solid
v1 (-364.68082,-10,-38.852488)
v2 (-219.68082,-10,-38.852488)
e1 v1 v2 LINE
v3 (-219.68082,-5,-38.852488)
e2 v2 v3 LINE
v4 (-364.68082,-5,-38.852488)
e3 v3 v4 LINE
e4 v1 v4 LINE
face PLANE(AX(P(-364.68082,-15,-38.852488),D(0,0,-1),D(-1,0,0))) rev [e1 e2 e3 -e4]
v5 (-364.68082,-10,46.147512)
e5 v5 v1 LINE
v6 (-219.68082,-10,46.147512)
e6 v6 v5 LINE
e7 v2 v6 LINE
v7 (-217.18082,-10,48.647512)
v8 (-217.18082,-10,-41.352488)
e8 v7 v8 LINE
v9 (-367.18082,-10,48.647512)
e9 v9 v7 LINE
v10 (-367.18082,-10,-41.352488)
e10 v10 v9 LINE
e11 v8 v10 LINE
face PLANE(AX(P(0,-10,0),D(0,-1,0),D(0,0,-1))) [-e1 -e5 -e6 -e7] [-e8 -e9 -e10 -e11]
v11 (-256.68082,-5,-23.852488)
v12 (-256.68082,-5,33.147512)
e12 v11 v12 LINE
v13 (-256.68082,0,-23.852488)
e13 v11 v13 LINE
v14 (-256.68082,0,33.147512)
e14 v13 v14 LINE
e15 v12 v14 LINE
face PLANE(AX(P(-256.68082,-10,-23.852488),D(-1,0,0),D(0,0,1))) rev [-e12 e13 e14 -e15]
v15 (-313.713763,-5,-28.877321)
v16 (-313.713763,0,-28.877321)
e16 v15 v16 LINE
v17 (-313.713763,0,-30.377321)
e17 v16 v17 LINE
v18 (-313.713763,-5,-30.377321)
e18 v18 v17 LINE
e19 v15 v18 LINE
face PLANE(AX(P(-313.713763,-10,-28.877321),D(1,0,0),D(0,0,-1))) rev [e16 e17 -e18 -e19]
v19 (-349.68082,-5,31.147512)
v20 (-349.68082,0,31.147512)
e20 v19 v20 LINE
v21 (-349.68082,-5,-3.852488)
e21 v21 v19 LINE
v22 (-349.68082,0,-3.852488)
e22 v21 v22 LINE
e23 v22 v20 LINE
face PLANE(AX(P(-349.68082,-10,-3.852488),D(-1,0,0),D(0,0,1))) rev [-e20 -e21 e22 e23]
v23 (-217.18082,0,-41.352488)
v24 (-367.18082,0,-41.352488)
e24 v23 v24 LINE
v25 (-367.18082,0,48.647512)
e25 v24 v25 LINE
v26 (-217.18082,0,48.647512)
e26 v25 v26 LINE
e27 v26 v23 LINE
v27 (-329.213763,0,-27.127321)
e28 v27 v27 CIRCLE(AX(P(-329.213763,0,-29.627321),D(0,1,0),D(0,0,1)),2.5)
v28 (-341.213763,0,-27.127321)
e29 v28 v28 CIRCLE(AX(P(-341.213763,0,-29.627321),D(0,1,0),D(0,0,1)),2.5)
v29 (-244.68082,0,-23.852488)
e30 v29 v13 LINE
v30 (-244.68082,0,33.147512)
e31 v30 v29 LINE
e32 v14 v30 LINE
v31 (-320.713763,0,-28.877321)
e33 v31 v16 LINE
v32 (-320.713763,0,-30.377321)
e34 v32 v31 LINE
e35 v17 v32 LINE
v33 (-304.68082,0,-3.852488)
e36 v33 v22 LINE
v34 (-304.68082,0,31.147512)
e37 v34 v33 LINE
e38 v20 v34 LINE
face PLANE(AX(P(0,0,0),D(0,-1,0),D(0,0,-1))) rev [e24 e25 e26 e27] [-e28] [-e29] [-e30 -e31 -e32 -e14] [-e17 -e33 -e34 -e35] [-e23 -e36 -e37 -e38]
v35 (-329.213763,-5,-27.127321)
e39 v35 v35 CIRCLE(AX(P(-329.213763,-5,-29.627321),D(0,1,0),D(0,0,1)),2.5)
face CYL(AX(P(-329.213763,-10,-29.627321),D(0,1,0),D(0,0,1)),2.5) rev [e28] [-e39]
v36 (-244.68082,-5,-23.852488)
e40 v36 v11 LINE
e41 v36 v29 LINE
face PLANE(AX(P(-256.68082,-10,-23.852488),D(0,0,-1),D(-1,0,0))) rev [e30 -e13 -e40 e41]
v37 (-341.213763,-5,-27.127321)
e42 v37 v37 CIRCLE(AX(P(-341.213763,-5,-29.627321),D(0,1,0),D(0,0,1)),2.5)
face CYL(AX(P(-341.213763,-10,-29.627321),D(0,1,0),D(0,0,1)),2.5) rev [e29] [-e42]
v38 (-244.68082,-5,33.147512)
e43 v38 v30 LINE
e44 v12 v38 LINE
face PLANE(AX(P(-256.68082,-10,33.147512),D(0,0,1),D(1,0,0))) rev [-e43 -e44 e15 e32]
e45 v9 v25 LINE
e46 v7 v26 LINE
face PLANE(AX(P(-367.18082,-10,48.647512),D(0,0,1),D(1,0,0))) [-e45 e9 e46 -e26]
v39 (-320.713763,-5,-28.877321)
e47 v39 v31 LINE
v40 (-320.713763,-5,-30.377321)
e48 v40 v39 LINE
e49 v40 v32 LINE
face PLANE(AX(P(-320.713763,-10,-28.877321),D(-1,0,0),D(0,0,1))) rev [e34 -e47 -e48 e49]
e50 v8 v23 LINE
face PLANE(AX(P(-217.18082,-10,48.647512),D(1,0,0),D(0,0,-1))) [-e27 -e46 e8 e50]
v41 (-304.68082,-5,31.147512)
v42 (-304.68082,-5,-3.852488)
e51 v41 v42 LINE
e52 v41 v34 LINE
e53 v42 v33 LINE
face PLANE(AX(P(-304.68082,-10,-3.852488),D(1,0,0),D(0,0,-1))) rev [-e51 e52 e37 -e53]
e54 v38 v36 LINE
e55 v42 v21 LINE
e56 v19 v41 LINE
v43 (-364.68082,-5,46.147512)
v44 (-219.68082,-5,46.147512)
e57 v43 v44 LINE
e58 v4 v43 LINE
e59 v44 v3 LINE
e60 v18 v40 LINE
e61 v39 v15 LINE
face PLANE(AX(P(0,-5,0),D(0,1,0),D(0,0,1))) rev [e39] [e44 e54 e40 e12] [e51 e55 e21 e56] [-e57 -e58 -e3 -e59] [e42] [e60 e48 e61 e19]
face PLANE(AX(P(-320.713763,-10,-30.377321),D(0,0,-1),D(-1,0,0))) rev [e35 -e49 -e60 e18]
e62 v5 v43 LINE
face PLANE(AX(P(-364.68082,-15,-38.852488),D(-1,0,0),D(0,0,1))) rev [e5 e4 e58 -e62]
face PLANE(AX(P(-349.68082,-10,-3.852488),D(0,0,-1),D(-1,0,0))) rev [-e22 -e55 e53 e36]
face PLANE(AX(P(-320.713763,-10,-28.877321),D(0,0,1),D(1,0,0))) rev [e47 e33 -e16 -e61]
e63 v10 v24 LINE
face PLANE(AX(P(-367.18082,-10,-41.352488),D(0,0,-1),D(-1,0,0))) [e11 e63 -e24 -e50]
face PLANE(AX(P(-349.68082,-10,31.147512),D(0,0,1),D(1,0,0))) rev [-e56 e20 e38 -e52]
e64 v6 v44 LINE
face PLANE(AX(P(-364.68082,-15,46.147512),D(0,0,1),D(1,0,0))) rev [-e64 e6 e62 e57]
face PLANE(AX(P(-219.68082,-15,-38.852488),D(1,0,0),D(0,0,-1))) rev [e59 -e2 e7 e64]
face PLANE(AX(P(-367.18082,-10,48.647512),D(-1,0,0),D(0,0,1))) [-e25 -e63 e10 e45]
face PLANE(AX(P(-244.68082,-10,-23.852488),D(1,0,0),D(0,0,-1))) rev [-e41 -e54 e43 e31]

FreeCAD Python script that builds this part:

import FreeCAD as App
import Part
import Sketcher


def add_polygon(sketch, points):
    """Adds a closed chain of lines whose ends are joined by coincident constraints."""
    first, n = sketch.GeometryCount, len(points)
    for a, b in zip(points, points[1:] + points[:1]):
        sketch.addGeometry(Part.LineSegment(App.Vector(*a, 0), App.Vector(*b, 0)), False)
    for i in range(n):
        sketch.addConstraint(Sketcher.Constraint("Coincident", first + i, 2, first + (i + 1) % n, 1))

doc = App.newDocument("Part")
params = doc.addObject("Spreadsheet::Sheet", "Params")
for row, (alias, value) in enumerate([
    ("sketch1_width", "150 mm"),
    ("sketch1_height", "90 mm"),
    ("pad1_length", "10 mm"),
    ("sketch2_width", "145 mm"),
    ("sketch2_height", "85 mm"),
    ("pocket1_length", "10 mm"),
    ("sketch3_width", "45 mm"),
    ("sketch3_height", "35 mm"),
    ("pocket2_length", "10 mm"),
    ("sketch4_diameter", "5 mm"),
    ("pocket3_length", "10 mm"),
    ("sketch5_width", "7 mm"),
    ("sketch5_height", "1.5 mm"),
    ("pocket4_length", "10 mm"),
    ("sketch6_width", "12 mm"),
    ("sketch6_height", "57 mm"),
    ("pocket5_length", "10 mm"),
], start=1):
    params.set(f"A{row}", alias)
    params.set(f"B{row}", "=" + value)
    params.setAlias(f"B{row}", alias)

body = doc.addObject("PartDesign::Body", "Body")

# Sketch on XZ plane
sketch1 = body.newObject("Sketcher::SketchObject", "Sketch")
sketch1.AttachmentSupport = (doc.getObject("XZ_Plane"), [""])
sketch1.MapMode = "FlatFace"
add_polygon(sketch1, [(-367, -41), (-367, 49), (-217, 49), (-217, -41)])  # lines 0-3
sketch1.addConstraint([
    Sketcher.Constraint("Vertical", 0),
    Sketcher.Constraint("Horizontal", 1),
    Sketcher.Constraint("Vertical", 2),
    Sketcher.Constraint("Horizontal", 3),
    Sketcher.Constraint("DistanceX", 1, 1, 1, 2, 150.0),
    Sketcher.Constraint("DistanceY", 0, 1, 0, 2, 90.0),
    Sketcher.Constraint("DistanceX", 0, 2, -1, 1, 367.18082),
    Sketcher.Constraint("DistanceY", -1, 1, 0, 2, 48.647512),
])
sketch1.setExpression("Constraints[8]", "Params.sketch1_width")
sketch1.setExpression("Constraints[9]", "Params.sketch1_height")
pad1 = body.newObject("PartDesign::Pad", "Pad")
pad1.Profile = sketch1
pad1.setExpression("Length", "Params.pad1_length")

# Sketch on XZ plane
sketch2 = body.newObject("Sketcher::SketchObject", "Sketch001")
sketch2.AttachmentSupport = (doc.getObject("XZ_Plane"), [""])
sketch2.MapMode = "FlatFace"
sketch2.AttachmentOffset = App.Placement(App.Vector(0, 0, 5), App.Rotation())
add_polygon(sketch2, [(-365, -39), (-365, 46), (-220, 46), (-220, -39)])  # lines 0-3
sketch2.addConstraint([
    Sketcher.Constraint("Vertical", 0),
    Sketcher.Constraint("Horizontal", 1),
    Sketcher.Constraint("Vertical", 2),
    Sketcher.Constraint("Horizontal", 3),
    Sketcher.Constraint("DistanceX", 1, 1, 1, 2, 145.0),
    Sketcher.Constraint("DistanceY", 0, 1, 0, 2, 85.0),
    Sketcher.Constraint("DistanceX", 0, 2, -1, 1, 364.68082),
    Sketcher.Constraint("DistanceY", -1, 1, 0, 2, 46.147512),
])
sketch2.setExpression("Constraints[8]", "Params.sketch2_width")
sketch2.setExpression("Constraints[9]", "Params.sketch2_height")
pocket1 = body.newObject("PartDesign::Pocket", "Pocket")
pocket1.Profile = sketch2
pocket1.setExpression("Length", "Params.pocket1_length")
pocket1.Reversed = True

# Sketch on XZ plane
sketch3 = body.newObject("Sketcher::SketchObject", "Sketch002")
sketch3.AttachmentSupport = (doc.getObject("XZ_Plane"), [""])
sketch3.MapMode = "FlatFace"
add_polygon(sketch3, [(-350, -4), (-350, 31), (-305, 31), (-305, -4)])  # lines 0-3
sketch3.addConstraint([
    Sketcher.Constraint("Vertical", 0),
    Sketcher.Constraint("Horizontal", 1),
    Sketcher.Constraint("Vertical", 2),
    Sketcher.Constraint("Horizontal", 3),
    Sketcher.Constraint("DistanceX", 1, 1, 1, 2, 45.0),
    Sketcher.Constraint("DistanceY", 0, 1, 0, 2, 35.0),
    Sketcher.Constraint("DistanceX", 0, 2, -1, 1, 349.68082),
    Sketcher.Constraint("DistanceY", -1, 1, 0, 2, 31.147512),
])
sketch3.setExpression("Constraints[8]", "Params.sketch3_width")
sketch3.setExpression("Constraints[9]", "Params.sketch3_height")
pocket2 = body.newObject("PartDesign::Pocket", "Pocket001")
pocket2.Profile = sketch3
pocket2.setExpression("Length", "Params.pocket2_length")
pocket2.Reversed = True

# Sketch on XZ plane
sketch4 = body.newObject("Sketcher::SketchObject", "Sketch003")
sketch4.AttachmentSupport = (doc.getObject("XZ_Plane"), [""])
sketch4.MapMode = "FlatFace"
sketch4.addGeometry([
    Part.Circle(App.Vector(-341.2, -29.6, 0), App.Vector(0, 0, 1), 2.5),
    Part.Circle(App.Vector(-329.2, -29.6, 0), App.Vector(0, 0, 1), 2.5),
], False)
sketch4.addConstraint([
    Sketcher.Constraint("Equal", 0, 1),
    Sketcher.Constraint("Horizontal", 0, 3, 1, 3),
    Sketcher.Constraint("Diameter", 0, 5.0),
    Sketcher.Constraint("DistanceX", 0, 3, 1, 3, 12.0),
    Sketcher.Constraint("DistanceY", 0, 3, -1, 1, 29.627321),
    Sketcher.Constraint("DistanceX", 0, 3, -1, 1, 341.213763),
])
sketch4.setExpression("Constraints[2]", "Params.sketch4_diameter")
pocket3 = body.newObject("PartDesign::Pocket", "Pocket002")
pocket3.Profile = sketch4
pocket3.setExpression("Length", "Params.pocket3_length")
pocket3.Reversed = True

# Sketch on XZ plane
sketch5 = body.newObject("Sketcher::SketchObject", "Sketch004")
sketch5.AttachmentSupport = (doc.getObject("XZ_Plane"), [""])
sketch5.MapMode = "FlatFace"
add_polygon(sketch5, [(-320.7, -30.4), (-320.7, -28.9), (-313.7, -28.9), (-313.7, -30.4)])  # lines 0-3
sketch5.addConstraint([
    Sketcher.Constraint("Vertical", 0),
    Sketcher.Constraint("Horizontal", 1),
    Sketcher.Constraint("Vertical", 2),
    Sketcher.Constraint("Horizontal", 3),
    Sketcher.Constraint("DistanceX", 1, 1, 1, 2, 7.0),
    Sketcher.Constraint("DistanceY", 0, 1, 0, 2, 1.5),
    Sketcher.Constraint("DistanceY", 0, 2, -1, 1, 28.877321),
    Sketcher.Constraint("DistanceX", 0, 2, -1, 1, 320.713763),
])
sketch5.setExpression("Constraints[8]", "Params.sketch5_width")
sketch5.setExpression("Constraints[9]", "Params.sketch5_height")
pocket4 = body.newObject("PartDesign::Pocket", "Pocket003")
pocket4.Profile = sketch5
pocket4.setExpression("Length", "Params.pocket4_length")
pocket4.Reversed = True

# Sketch on XZ plane
sketch6 = body.newObject("Sketcher::SketchObject", "Sketch005")
sketch6.AttachmentSupport = (doc.getObject("XZ_Plane"), [""])
sketch6.MapMode = "FlatFace"
add_polygon(sketch6, [(-257, -24), (-257, 33), (-245, 33), (-245, -24)])  # lines 0-3
sketch6.addConstraint([
    Sketcher.Constraint("Vertical", 0),
    Sketcher.Constraint("Horizontal", 1),
    Sketcher.Constraint("Vertical", 2),
    Sketcher.Constraint("Horizontal", 3),
    Sketcher.Constraint("DistanceX", 1, 1, 1, 2, 12.0),
    Sketcher.Constraint("DistanceY", 0, 1, 0, 2, 57.0),
    Sketcher.Constraint("DistanceX", 0, 2, -1, 1, 256.68082),
    Sketcher.Constraint("DistanceY", -1, 1, 0, 2, 33.147512),
])
sketch6.setExpression("Constraints[8]", "Params.sketch6_width")
sketch6.setExpression("Constraints[9]", "Params.sketch6_height")
pocket5 = body.newObject("PartDesign::Pocket", "Pocket004")
pocket5.Profile = sketch6
pocket5.setExpression("Length", "Params.pocket5_length")
pocket5.Reversed = True

doc.recompute()
